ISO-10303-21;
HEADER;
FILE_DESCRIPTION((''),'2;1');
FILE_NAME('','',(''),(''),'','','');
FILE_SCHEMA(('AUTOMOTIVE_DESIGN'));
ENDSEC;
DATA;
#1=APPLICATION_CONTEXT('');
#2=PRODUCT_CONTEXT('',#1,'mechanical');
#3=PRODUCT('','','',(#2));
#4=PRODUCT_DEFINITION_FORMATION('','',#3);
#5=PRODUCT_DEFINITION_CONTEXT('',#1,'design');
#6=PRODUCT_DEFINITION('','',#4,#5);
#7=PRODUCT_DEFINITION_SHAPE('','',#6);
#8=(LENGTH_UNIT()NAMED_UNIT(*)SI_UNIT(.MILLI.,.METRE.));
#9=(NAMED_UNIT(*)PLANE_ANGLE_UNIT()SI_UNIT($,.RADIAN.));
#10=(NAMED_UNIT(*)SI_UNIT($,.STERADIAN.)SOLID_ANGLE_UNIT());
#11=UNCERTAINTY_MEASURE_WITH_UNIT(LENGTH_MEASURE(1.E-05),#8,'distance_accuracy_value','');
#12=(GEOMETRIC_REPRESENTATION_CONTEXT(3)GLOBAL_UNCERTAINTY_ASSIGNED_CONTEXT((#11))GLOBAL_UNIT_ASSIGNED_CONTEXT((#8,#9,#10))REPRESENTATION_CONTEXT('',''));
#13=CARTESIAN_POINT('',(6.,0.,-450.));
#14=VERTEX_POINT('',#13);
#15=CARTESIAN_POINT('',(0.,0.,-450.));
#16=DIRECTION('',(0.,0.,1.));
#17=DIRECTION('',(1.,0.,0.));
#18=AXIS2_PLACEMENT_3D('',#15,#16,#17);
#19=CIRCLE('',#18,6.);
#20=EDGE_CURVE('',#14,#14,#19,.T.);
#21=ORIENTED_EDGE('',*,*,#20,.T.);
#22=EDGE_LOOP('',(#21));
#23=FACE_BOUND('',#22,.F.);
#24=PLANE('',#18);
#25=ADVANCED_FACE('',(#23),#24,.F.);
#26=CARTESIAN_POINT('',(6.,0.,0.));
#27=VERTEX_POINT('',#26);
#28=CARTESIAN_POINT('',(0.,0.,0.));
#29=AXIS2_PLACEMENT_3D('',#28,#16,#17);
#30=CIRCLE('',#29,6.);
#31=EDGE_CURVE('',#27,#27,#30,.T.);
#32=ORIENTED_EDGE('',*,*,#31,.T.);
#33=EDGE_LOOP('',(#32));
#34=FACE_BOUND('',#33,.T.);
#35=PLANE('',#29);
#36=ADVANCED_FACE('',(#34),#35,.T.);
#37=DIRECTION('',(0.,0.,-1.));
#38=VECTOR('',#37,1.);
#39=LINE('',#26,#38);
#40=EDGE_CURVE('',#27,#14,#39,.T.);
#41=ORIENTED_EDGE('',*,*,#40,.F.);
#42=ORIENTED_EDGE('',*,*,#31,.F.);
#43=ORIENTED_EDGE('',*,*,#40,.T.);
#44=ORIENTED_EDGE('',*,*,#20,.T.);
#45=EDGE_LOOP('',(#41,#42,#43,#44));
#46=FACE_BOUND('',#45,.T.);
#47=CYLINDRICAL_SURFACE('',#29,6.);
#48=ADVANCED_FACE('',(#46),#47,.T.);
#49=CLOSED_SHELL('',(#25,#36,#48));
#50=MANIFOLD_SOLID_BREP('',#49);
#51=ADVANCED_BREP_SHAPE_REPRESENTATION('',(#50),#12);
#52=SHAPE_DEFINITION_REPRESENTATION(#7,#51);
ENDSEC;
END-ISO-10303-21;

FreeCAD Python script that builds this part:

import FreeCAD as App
import Part
import Sketcher
from FreeCAD import Vector
Q = App.Units.Quantity

doc = App.newDocument("Part")
params = doc.addObject("Spreadsheet::Sheet", "Params")
for row, (alias, value) in enumerate([
    ("sketch1_diameter", "12 mm"),
    ("pad1_length", "450 mm"),
], start=1):
    params.set(f"A{row}", alias)
    params.set(f"B{row}", "=" + value)
    params.setAlias(f"B{row}", alias)

body = doc.addObject("PartDesign::Body", "Body")

# Sketch on XY plane
sketch1 = doc.addObject("Sketcher::SketchObject", "Sketch")
body.addObject(sketch1)
sketch1.AttachmentSupport = (doc.XY_Plane, [""])
sketch1.MapMode = "FlatFace"
sketch1.addGeometry(Part.Circle(Vector(0, 0, 0), Vector(0, 0, 1), 6), False)
sketch1.addConstraint([
    Sketcher.Constraint("Coincident", 0, 3, -1, 1),
    Sketcher.Constraint("Diameter", 0, Q("12 mm")),
])
sketch1.setExpression("Constraints[1]", "Params.sketch1_diameter")
pad1 = doc.addObject("PartDesign::Pad", "Pad")
body.addObject(pad1)
pad1.Profile = sketch1
pad1.setExpression("Length", "Params.pad1_length")
pad1.Reversed = True

doc.recompute()
